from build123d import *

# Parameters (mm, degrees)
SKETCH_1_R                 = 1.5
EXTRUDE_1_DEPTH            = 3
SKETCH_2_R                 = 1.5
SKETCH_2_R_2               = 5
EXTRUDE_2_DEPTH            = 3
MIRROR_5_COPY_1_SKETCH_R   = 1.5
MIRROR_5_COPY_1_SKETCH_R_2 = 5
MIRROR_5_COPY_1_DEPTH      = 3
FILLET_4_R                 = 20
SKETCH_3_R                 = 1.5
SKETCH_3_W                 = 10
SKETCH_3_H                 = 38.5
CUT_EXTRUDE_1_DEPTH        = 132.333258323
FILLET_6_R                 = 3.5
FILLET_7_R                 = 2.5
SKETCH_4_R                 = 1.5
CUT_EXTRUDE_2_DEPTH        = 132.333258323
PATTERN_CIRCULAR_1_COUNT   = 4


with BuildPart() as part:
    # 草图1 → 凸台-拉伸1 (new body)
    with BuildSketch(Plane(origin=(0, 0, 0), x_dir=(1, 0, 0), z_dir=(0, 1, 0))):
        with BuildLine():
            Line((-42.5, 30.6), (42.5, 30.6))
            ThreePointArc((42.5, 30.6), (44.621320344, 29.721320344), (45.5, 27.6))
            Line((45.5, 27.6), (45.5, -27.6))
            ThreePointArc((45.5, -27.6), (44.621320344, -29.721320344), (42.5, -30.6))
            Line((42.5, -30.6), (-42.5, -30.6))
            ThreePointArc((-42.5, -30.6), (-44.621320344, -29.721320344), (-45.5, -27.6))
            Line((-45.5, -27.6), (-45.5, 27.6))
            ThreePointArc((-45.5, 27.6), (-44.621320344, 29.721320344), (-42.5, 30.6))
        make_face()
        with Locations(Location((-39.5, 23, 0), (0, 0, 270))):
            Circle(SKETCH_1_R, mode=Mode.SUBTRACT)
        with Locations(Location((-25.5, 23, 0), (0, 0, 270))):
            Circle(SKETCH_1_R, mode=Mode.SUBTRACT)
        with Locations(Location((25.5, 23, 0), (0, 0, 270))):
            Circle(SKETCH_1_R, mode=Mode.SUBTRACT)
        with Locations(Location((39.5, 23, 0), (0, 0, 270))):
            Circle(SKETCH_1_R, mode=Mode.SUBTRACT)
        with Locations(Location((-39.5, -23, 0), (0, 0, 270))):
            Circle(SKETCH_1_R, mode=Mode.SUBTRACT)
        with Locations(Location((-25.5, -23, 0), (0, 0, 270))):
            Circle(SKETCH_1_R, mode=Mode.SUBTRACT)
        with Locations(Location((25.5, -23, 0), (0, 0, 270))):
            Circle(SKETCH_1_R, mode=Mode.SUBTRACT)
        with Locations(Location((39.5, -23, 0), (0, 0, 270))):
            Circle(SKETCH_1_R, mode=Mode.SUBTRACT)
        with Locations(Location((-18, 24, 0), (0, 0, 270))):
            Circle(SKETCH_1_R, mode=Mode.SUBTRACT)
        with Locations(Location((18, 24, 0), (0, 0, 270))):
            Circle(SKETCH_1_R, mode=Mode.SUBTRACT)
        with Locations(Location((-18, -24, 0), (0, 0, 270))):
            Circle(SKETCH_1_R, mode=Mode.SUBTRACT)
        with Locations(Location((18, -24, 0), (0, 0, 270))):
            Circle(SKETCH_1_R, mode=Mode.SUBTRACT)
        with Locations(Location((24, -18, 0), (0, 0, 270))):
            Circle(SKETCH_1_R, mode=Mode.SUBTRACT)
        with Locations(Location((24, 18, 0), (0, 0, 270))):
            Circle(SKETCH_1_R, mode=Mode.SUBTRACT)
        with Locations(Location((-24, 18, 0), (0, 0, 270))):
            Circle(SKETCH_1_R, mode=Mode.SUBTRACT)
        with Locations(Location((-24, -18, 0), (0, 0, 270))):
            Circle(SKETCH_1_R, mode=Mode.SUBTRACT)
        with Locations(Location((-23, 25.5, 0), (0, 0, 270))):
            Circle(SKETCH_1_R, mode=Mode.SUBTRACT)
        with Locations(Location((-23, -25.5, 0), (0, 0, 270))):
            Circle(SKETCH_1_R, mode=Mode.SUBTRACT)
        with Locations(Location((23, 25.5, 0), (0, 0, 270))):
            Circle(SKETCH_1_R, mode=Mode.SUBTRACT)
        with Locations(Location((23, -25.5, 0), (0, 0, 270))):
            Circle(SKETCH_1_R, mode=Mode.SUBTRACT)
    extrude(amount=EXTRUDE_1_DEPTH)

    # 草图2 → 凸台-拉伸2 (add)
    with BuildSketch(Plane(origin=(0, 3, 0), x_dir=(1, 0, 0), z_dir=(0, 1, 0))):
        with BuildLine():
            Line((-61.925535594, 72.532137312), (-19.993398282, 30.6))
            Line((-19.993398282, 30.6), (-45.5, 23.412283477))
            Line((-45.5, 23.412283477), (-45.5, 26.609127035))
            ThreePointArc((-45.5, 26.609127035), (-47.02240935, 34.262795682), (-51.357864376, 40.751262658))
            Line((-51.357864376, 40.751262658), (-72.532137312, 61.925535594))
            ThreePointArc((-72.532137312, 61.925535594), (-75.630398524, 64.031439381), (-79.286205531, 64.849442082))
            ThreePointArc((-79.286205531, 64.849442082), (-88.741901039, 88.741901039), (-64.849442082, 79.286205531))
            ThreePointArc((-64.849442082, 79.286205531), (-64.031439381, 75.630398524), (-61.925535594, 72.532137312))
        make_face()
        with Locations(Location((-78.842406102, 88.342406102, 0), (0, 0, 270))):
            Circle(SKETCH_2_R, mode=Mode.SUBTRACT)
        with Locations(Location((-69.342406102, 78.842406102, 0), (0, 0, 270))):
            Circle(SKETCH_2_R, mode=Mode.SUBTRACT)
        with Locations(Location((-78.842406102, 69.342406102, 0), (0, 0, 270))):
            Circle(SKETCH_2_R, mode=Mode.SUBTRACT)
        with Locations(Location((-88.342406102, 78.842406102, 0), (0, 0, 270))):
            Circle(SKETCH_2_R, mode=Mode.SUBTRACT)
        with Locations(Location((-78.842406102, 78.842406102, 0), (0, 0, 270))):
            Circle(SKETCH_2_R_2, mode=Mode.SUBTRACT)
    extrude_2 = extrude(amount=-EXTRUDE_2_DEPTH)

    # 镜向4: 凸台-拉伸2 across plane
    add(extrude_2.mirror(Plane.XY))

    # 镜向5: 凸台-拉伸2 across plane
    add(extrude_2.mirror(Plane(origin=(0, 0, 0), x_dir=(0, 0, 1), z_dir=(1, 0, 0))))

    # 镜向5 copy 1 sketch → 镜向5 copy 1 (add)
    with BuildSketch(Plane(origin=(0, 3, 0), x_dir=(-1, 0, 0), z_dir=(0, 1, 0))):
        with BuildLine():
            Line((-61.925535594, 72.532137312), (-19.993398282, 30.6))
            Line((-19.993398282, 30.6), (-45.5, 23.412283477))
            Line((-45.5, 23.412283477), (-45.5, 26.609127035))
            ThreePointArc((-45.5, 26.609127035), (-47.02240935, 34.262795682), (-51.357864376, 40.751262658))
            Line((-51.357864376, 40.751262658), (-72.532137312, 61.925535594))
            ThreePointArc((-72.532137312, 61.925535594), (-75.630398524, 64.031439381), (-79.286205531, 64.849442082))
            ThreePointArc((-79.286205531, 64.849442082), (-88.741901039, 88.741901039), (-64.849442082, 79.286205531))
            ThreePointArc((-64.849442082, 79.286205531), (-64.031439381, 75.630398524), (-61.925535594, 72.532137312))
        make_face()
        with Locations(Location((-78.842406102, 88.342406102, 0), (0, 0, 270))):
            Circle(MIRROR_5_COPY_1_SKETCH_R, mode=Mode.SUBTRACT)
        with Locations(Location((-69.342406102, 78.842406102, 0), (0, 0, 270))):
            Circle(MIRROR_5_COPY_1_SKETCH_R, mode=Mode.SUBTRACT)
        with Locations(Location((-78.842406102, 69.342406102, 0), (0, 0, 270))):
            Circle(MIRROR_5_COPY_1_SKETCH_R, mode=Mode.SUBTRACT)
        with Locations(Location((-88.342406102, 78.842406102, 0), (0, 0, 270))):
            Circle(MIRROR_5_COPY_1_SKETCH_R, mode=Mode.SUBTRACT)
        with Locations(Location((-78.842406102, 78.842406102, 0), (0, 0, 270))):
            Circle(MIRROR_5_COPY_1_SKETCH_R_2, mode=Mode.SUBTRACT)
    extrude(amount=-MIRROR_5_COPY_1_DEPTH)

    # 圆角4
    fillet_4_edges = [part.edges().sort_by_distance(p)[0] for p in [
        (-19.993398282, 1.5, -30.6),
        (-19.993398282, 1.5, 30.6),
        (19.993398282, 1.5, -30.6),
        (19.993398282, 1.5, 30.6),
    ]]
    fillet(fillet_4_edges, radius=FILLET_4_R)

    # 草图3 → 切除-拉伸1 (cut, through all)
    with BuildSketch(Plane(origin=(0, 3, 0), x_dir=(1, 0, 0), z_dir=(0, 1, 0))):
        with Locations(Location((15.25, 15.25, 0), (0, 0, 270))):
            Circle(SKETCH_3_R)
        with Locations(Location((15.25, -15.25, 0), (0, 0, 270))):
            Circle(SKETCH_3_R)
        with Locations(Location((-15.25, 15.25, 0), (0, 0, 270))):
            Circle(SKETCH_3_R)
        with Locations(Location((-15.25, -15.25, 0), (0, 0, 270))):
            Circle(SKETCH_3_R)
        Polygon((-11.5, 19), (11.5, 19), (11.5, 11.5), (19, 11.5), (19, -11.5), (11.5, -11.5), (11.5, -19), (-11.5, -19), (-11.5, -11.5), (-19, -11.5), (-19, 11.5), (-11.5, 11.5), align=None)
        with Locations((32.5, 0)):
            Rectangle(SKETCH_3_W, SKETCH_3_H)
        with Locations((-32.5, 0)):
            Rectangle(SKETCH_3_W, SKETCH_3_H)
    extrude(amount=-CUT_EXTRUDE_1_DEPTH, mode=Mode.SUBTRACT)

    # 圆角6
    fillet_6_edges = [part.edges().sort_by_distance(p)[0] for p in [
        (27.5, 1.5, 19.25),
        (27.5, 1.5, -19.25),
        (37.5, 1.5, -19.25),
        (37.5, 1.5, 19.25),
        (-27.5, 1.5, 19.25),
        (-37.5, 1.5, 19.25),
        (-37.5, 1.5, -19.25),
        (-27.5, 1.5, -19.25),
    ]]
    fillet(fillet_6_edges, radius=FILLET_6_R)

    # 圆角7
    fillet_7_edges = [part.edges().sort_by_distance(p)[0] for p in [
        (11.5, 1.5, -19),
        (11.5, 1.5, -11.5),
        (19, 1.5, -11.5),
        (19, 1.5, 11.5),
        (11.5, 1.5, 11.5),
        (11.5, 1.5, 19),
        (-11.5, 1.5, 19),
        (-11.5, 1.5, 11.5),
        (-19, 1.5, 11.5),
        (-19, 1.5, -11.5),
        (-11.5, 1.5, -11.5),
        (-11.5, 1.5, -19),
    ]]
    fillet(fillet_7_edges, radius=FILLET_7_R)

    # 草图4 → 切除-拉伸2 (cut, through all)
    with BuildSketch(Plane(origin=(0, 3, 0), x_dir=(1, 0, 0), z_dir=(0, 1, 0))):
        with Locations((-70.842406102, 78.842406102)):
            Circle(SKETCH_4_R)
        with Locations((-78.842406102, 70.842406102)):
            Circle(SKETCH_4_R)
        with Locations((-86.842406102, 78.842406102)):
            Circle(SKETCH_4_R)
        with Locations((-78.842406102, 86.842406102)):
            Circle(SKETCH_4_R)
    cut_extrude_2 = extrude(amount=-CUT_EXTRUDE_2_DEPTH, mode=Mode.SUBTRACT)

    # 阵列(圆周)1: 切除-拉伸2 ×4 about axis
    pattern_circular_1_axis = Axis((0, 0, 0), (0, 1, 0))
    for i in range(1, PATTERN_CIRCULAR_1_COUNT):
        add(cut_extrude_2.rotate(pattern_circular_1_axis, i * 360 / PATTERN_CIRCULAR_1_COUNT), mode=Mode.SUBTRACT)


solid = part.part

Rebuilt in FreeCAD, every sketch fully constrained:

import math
import FreeCAD as App
import Part
import Sketcher
Q = App.Units.Quantity


def edges_at(feature, points):
    """Names of the edges that pass closest to the given points."""
    edges = feature.Shape.Edges
    near = lambda p: min(range(len(edges)), key=lambda i: edges[i].distToShape(Part.Vertex(*p))[0])
    return sorted({f"Edge{near(p) + 1}" for p in points})

doc = App.newDocument("Part")
body = doc.addObject("PartDesign::Body", "Body")

sketch1 = body.newObject("Sketcher::SketchObject", "Sketch")
sketch1.AttachmentSupport = (doc.getObject("XZ_Plane"), [""])
sketch1.MapMode = "FlatFace"
sketch1.addGeometry(Part.LineSegment(App.Vector(42.5, -30.6, 0), App.Vector(-42.5, -30.6, 0)), False)
sketch1.addGeometry(Part.ArcOfCircle(Part.Circle(App.Vector(-42.5, -27.6, 0), App.Vector(0, 0, 1), 3), math.radians(180), math.radians(270)), False)
sketch1.addGeometry(Part.LineSegment(App.Vector(-45.5, -27.6, 0), App.Vector(-45.5, 27.6, 0)), False)
sketch1.addGeometry(Part.ArcOfCircle(Part.Circle(App.Vector(-42.5, 27.6, 0), App.Vector(0, 0, 1), 3), math.radians(90), math.radians(180)), False)
sketch1.addGeometry(Part.LineSegment(App.Vector(-42.5, 30.6, 0), App.Vector(42.5, 30.6, 0)), False)
sketch1.addGeometry(Part.ArcOfCircle(Part.Circle(App.Vector(42.5, 27.6, 0), App.Vector(0, 0, 1), 3), math.radians(0), math.radians(90)), False)
sketch1.addGeometry(Part.LineSegment(App.Vector(45.5, 27.6, 0), App.Vector(45.5, -27.6, 0)), False)
sketch1.addGeometry(Part.ArcOfCircle(Part.Circle(App.Vector(42.5, -27.6, 0), App.Vector(0, 0, 1), 3), math.radians(-90), math.radians(0)), False)
sketch1.addGeometry(Part.Circle(App.Vector(39.5, 23, 0), App.Vector(0, 0, 1), 1.5), False)
sketch1.addGeometry(Part.Circle(App.Vector(23, 25.5, 0), App.Vector(0, 0, 1), 1.5), False)
sketch1.addGeometry(Part.Circle(App.Vector(25.5, 23, 0), App.Vector(0, 0, 1), 1.5), False)
sketch1.addGeometry(Part.Circle(App.Vector(24, 18, 0), App.Vector(0, 0, 1), 1.5), False)
sketch1.addGeometry(Part.Circle(App.Vector(18, 24, 0), App.Vector(0, 0, 1), 1.5), False)
sketch1.addGeometry(Part.Circle(App.Vector(-18, 24, 0), App.Vector(0, 0, 1), 1.5), False)
sketch1.addGeometry(Part.Circle(App.Vector(-23, 25.5, 0), App.Vector(0, 0, 1), 1.5), False)
sketch1.addGeometry(Part.Circle(App.Vector(-25.5, 23, 0), App.Vector(0, 0, 1), 1.5), False)
sketch1.addGeometry(Part.Circle(App.Vector(-39.5, 23, 0), App.Vector(0, 0, 1), 1.5), False)
sketch1.addGeometry(Part.Circle(App.Vector(-24, 18, 0), App.Vector(0, 0, 1), 1.5), False)
sketch1.addGeometry(Part.Circle(App.Vector(24, -18, 0), App.Vector(0, 0, 1), 1.5), False)
sketch1.addGeometry(Part.Circle(App.Vector(39.5, -23, 0), App.Vector(0, 0, 1), 1.5), False)
sketch1.addGeometry(Part.Circle(App.Vector(25.5, -23, 0), App.Vector(0, 0, 1), 1.5), False)
sketch1.addGeometry(Part.Circle(App.Vector(23, -25.5, 0), App.Vector(0, 0, 1), 1.5), False)
sketch1.addGeometry(Part.Circle(App.Vector(18, -24, 0), App.Vector(0, 0, 1), 1.5), False)
sketch1.addGeometry(Part.Circle(App.Vector(-18, -24, 0), App.Vector(0, 0, 1), 1.5), False)
sketch1.addGeometry(Part.Circle(App.Vector(-24, -18, 0), App.Vector(0, 0, 1), 1.5), False)
sketch1.addGeometry(Part.Circle(App.Vector(-25.5, -23, 0), App.Vector(0, 0, 1), 1.5), False)
sketch1.addGeometry(Part.Circle(App.Vector(-23, -25.5, 0), App.Vector(0, 0, 1), 1.5), False)
sketch1.addGeometry(Part.Circle(App.Vector(-39.5, -23, 0), App.Vector(0, 0, 1), 1.5), False)
sketch1.addConstraint(Sketcher.Constraint("Tangent", 0, 2, 1, 2))
sketch1.addConstraint(Sketcher.Constraint("Tangent", 1, 1, 2, 1))
sketch1.addConstraint(Sketcher.Constraint("Tangent", 2, 2, 3, 2))
sketch1.addConstraint(Sketcher.Constraint("Tangent", 3, 1, 4, 1))
sketch1.addConstraint(Sketcher.Constraint("Tangent", 4, 2, 5, 2))
sketch1.addConstraint(Sketcher.Constraint("Tangent", 5, 1, 6, 1))
sketch1.addConstraint(Sketcher.Constraint("Tangent", 6, 2, 7, 2))
sketch1.addConstraint(Sketcher.Constraint("Tangent", 7, 1, 0, 1))
sketch1.addConstraint(Sketcher.Constraint("Horizontal", 0))
sketch1.addConstraint(Sketcher.Constraint("Vertical", 2))
sketch1.addConstraint(Sketcher.Constraint("Horizontal", 4))
sketch1.addConstraint(Sketcher.Constraint("Vertical", 6))
sketch1.addConstraint(Sketcher.Constraint("Equal", 1, 3))
sketch1.addConstraint(Sketcher.Constraint("Equal", 3, 5))
sketch1.addConstraint(Sketcher.Constraint("Equal", 5, 7))
sketch1.addConstraint(Sketcher.Constraint("Equal", 8, 9))
sketch1.addConstraint(Sketcher.Constraint("Equal", 9, 10))
sketch1.addConstraint(Sketcher.Constraint("Equal", 10, 11))
sketch1.addConstraint(Sketcher.Constraint("Equal", 11, 12))
sketch1.addConstraint(Sketcher.Constraint("Equal", 12, 13))
sketch1.addConstraint(Sketcher.Constraint("Equal", 13, 14))
sketch1.addConstraint(Sketcher.Constraint("Equal", 14, 15))
sketch1.addConstraint(Sketcher.Constraint("Equal", 15, 16))
sketch1.addConstraint(Sketcher.Constraint("Equal", 16, 17))
sketch1.addConstraint(Sketcher.Constraint("Equal", 17, 18))
sketch1.addConstraint(Sketcher.Constraint("Equal", 18, 19))
sketch1.addConstraint(Sketcher.Constraint("Equal", 19, 20))
sketch1.addConstraint(Sketcher.Constraint("Equal", 20, 21))
sketch1.addConstraint(Sketcher.Constraint("Equal", 21, 22))
sketch1.addConstraint(Sketcher.Constraint("Equal", 22, 23))
sketch1.addConstraint(Sketcher.Constraint("Equal", 23, 24))
sketch1.addConstraint(Sketcher.Constraint("Equal", 24, 25))
sketch1.addConstraint(Sketcher.Constraint("Equal", 25, 26))
sketch1.addConstraint(Sketcher.Constraint("Equal", 26, 27))
sketch1.addConstraint(Sketcher.Constraint("Symmetric", 1, 3, 5, 3, -1, 1))
sketch1.addConstraint(Sketcher.Constraint("Symmetric", 17, 3, 18, 3, -1, 1))
sketch1.addConstraint(Sketcher.Constraint("Symmetric", 16, 3, 19, 3, -1, 1))
sketch1.addConstraint(Sketcher.Constraint("Symmetric", 15, 3, 20, 3, -1, 1))
sketch1.addConstraint(Sketcher.Constraint("Symmetric", 14, 3, 21, 3, -1, 1))
sketch1.addConstraint(Sketcher.Constraint("Symmetric", 13, 3, 22, 3, -1, 1))
sketch1.addConstraint(Sketcher.Constraint("Symmetric", 12, 3, 23, 3, -1, 1))
sketch1.addConstraint(Sketcher.Constraint("Symmetric", 11, 3, 24, 3, -1, 1))
sketch1.addConstraint(Sketcher.Constraint("Symmetric", 10, 3, 25, 3, -1, 1))
sketch1.addConstraint(Sketcher.Constraint("Symmetric", 9, 3, 26, 3, -1, 1))
sketch1.addConstraint(Sketcher.Constraint("Symmetric", 8, 3, 27, 3, -1, 1))
sketch1.addConstraint(Sketcher.Constraint("Symmetric", 12, 3, 13, 3, -2))
sketch1.addConstraint(Sketcher.Constraint("Symmetric", 9, 3, 14, 3, -2))
sketch1.addConstraint(Sketcher.Constraint("Symmetric", 10, 3, 15, 3, -2))
sketch1.addConstraint(Sketcher.Constraint("Symmetric", 8, 3, 16, 3, -2))
sketch1.addConstraint(Sketcher.Constraint("Symmetric", 11, 3, 17, 3, -2))
sketch1.addConstraint(Sketcher.Constraint("Horizontal", 8, 3, 10, 3))
sketch1.addConstraint(Sketcher.Constraint("Diameter", 8, 3.0))
sketch1.addConstraint(Sketcher.Constraint("Radius", 1, 3.0))
sketch1.addConstraint(Sketcher.Constraint("DistanceX", 0, 2, 0, 1, 85.0))
sketch1.addConstraint(Sketcher.Constraint("DistanceY", 2, 1, 2, 2, 55.2))
sketch1.addConstraint(Sketcher.Constraint("DistanceY", -1, 1, 8, 3, 23.0))
sketch1.addConstraint(Sketcher.Constraint("DistanceX", -1, 1, 9, 3, 23.0))
sketch1.addConstraint(Sketcher.Constraint("DistanceX", -1, 1, 11, 3, 24.0))
sketch1.addConstraint(Sketcher.Constraint("DistanceY", -1, 1, 11, 3, 18.0))
sketch1.addConstraint(Sketcher.Constraint("DistanceX", -1, 1, 12, 3, 18.0))
sketch1.addConstraint(Sketcher.Constraint("DistanceY", -1, 1, 12, 3, 24.0))
sketch1.addConstraint(Sketcher.Constraint("DistanceX", 8, 3, 5, 3, 3.0))
sketch1.addConstraint(Sketcher.Constraint("DistanceX", 10, 3, 8, 3, 14.0))
sketch1.addConstraint(Sketcher.Constraint("DistanceY", -1, 1, 9, 3, 25.5))
pad1 = body.newObject("PartDesign::Pad", "Pad")
pad1.Profile = sketch1
pad1.Length = 3
pad1.Reversed = True

sketch2 = body.newObject("Sketcher::SketchObject", "Sketch001")
sketch2.AttachmentSupport = (doc.getObject("XZ_Plane"), [""])
sketch2.MapMode = "FlatFace"
sketch2.AttachmentOffset = App.Placement(App.Vector(0, 0, -3), App.Rotation())
sketch2.addGeometry(Part.LineSegment(App.Vector(-20, -30.6, 0), App.Vector(-61.9, -72.5, 0)), False)
sketch2.addGeometry(Part.ArcOfCircle(Part.Circle(App.Vector(-54.9, -79.6, 0), App.Vector(0, 0, 1), 10), math.radians(135), math.radians(178)), False)
sketch2.addGeometry(Part.ArcOfCircle(Part.Circle(App.Vector(-78.8, -78.8, 0), App.Vector(0, 0, 1), 14), math.radians(92), math.radians(358)), False)
sketch2.addGeometry(Part.ArcOfCircle(Part.Circle(App.Vector(-79.6, -54.9, 0), App.Vector(0, 0, 1), 10), math.radians(-88), math.radians(-45)), False)
sketch2.addGeometry(Part.LineSegment(App.Vector(-72.5, -61.9, 0), App.Vector(-51.4, -40.8, 0)), False)
sketch2.addGeometry(Part.ArcOfCircle(Part.Circle(App.Vector(-65.5, -26.6, 0), App.Vector(0, 0, 1), 20), math.radians(-45), math.radians(0)), False)
sketch2.addGeometry(Part.LineSegment(App.Vector(-45.5, -26.6, 0), App.Vector(-45.5, -23.4, 0)), False)
sketch2.addGeometry(Part.LineSegment(App.Vector(-45.5, -23.4, 0), App.Vector(-20, -30.6, 0)), False)
sketch2.addGeometry(Part.Circle(App.Vector(-78.8, -69.3, 0), App.Vector(0, 0, 1), 1.5), False)
sketch2.addGeometry(Part.Circle(App.Vector(-69.3, -78.8, 0), App.Vector(0, 0, 1), 1.5), False)
sketch2.addGeometry(Part.Circle(App.Vector(-78.8, -78.8, 0), App.Vector(0, 0, 1), 5), False)
sketch2.addGeometry(Part.Circle(App.Vector(-88.3, -78.8, 0), App.Vector(0, 0, 1), 1.5), False)
sketch2.addGeometry(Part.Circle(App.Vector(-78.8, -88.3, 0), App.Vector(0, 0, 1), 1.5), False)
sketch2.addConstraint(Sketcher.Constraint("Tangent", 0, 2, 1, 1))
sketch2.addConstraint(Sketcher.Constraint("Tangent", 1, 2, 2, 2))
sketch2.addConstraint(Sketcher.Constraint("Tangent", 2, 1, 3, 1))
sketch2.addConstraint(Sketcher.Constraint("Tangent", 3, 2, 4, 1))
sketch2.addConstraint(Sketcher.Constraint("Tangent", 4, 2, 5, 1))
sketch2.addConstraint(Sketcher.Constraint("Tangent", 5, 2, 6, 1))
sketch2.addConstraint(Sketcher.Constraint("Coincident", 6, 2, 7, 1))
sketch2.addConstraint(Sketcher.Constraint("Coincident", 7, 2, 0, 1))
sketch2.addConstraint(Sketcher.Constraint("Vertical", 6))
sketch2.addConstraint(Sketcher.Constraint("Coincident", 10, 3, 2, 3))
sketch2.addConstraint(Sketcher.Constraint("Equal", 1, 3))
sketch2.addConstraint(Sketcher.Constraint("Equal", 8, 9))
sketch2.addConstraint(Sketcher.Constraint("Equal", 9, 11))
sketch2.addConstraint(Sketcher.Constraint("Equal", 11, 12))
sketch2.addConstraint(Sketcher.Constraint("Parallel", 0, 4))
sketch2.addConstraint(Sketcher.Constraint("Horizontal", 2, 3, 9, 3))
sketch2.addConstraint(Sketcher.Constraint("Horizontal", 10, 3, 11, 3))
sketch2.addConstraint(Sketcher.Constraint("Vertical", 2, 3, 8, 3))
sketch2.addConstraint(Sketcher.Constraint("Vertical", 10, 3, 12, 3))
sketch2.addConstraint(Sketcher.Constraint("Diameter", 8, 3.0))
sketch2.addConstraint(Sketcher.Constraint("Diameter", 10, 10.0))
sketch2.addConstraint(Sketcher.Constraint("Radius", 1, 10.0))
sketch2.addConstraint(Sketcher.Constraint("Radius", 2, 14.0))
sketch2.addConstraint(Sketcher.Constraint("Radius", 5, 20.0))
sketch2.addConstraint(Sketcher.Constraint("Angle", 0, Q("-135 deg")))
sketch2.addConstraint(Sketcher.Constraint("DistanceX", 11, 3, 9, 3, 19.0))
sketch2.addConstraint(Sketcher.Constraint("DistanceY", 12, 3, 8, 3, 19.0))
sketch2.addConstraint(Sketcher.Constraint("Distance", 7, 26.5))
sketch2.addConstraint(Sketcher.Constraint("DistanceX", 5, 3, -1, 1, 65.5))
sketch2.addConstraint(Sketcher.Constraint("DistanceY", 7, 2, -1, 1, 30.6))
sketch2.addConstraint(Sketcher.Constraint("DistanceY", 2, 3, 8, 3, 9.5))
sketch2.addConstraint(Sketcher.Constraint("DistanceX", 2, 3, 9, 3, 9.5))
sketch2.addConstraint(Sketcher.Constraint("DistanceY", 1, 3, 1, 2, 0.317))
sketch2.addConstraint(Sketcher.Constraint("DistanceX", 3, 3, 2, 1, 0.317))
sketch2.addConstraint(Sketcher.Constraint("DistanceX", 7, 2, -1, 1, 19.993398))
sketch2.addConstraint(Sketcher.Constraint("DistanceY", 3, 3, 5, 3, 28.245341))
pad2 = body.newObject("PartDesign::Pad", "Pad001")
pad2.Profile = sketch2
pad2.Length = 3
doc.recompute()

mirrored = body.newObject("PartDesign::Mirrored", "Mirrored")
mirrored.Originals = [pad2]
mirrored.MirrorPlane = (doc.getObject("XY_Plane"), [""])
body.Tip = mirrored
doc.recompute()

mirrored2 = body.newObject("PartDesign::Mirrored", "Mirrored001")
mirrored2.Originals = [pad2]
mirrored2.MirrorPlane = (doc.getObject("YZ_Plane"), [""])
body.Tip = mirrored2

sketch3 = body.newObject("Sketcher::SketchObject", "Sketch002")
sketch3.AttachmentSupport = (doc.getObject("XZ_Plane"), [""])
sketch3.MapMode = "FlatFace"
sketch3.AttachmentOffset = App.Placement(App.Vector(0, 0, -3), App.Rotation())
sketch3.addGeometry(Part.LineSegment(App.Vector(20, 30.6, 0), App.Vector(61.9, 72.5, 0)), False)
sketch3.addGeometry(Part.ArcOfCircle(Part.Circle(App.Vector(54.9, 79.6, 0), App.Vector(0, 0, 1), 10), math.radians(-45), math.radians(-2)), False)
sketch3.addGeometry(Part.ArcOfCircle(Part.Circle(App.Vector(78.8, 78.8, 0), App.Vector(0, 0, 1), 14), math.radians(-88), math.radians(178)), False)
sketch3.addGeometry(Part.ArcOfCircle(Part.Circle(App.Vector(79.6, 54.9, 0), App.Vector(0, 0, 1), 10), math.radians(92), math.radians(135)), False)
sketch3.addGeometry(Part.LineSegment(App.Vector(72.5, 61.9, 0), App.Vector(51.4, 40.8, 0)), False)
sketch3.addGeometry(Part.ArcOfCircle(Part.Circle(App.Vector(65.5, 26.6, 0), App.Vector(0, 0, 1), 20), math.radians(135), math.radians(180)), False)
sketch3.addGeometry(Part.LineSegment(App.Vector(45.5, 26.6, 0), App.Vector(45.5, 23.4, 0)), False)
sketch3.addGeometry(Part.LineSegment(App.Vector(45.5, 23.4, 0), App.Vector(20, 30.6, 0)), False)
sketch3.addGeometry(Part.Circle(App.Vector(78.8, 69.3, 0), App.Vector(0, 0, 1), 1.5), False)
sketch3.addGeometry(Part.Circle(App.Vector(69.3, 78.8, 0), App.Vector(0, 0, 1), 1.5), False)
sketch3.addGeometry(Part.Circle(App.Vector(78.8, 78.8, 0), App.Vector(0, 0, 1), 5), False)
sketch3.addGeometry(Part.Circle(App.Vector(88.3, 78.8, 0), App.Vector(0, 0, 1), 1.5), False)
sketch3.addGeometry(Part.Circle(App.Vector(78.8, 88.3, 0), App.Vector(0, 0, 1), 1.5), False)
sketch3.addConstraint(Sketcher.Constraint("Tangent", 0, 2, 1, 1))
sketch3.addConstraint(Sketcher.Constraint("Tangent", 1, 2, 2, 2))
sketch3.addConstraint(Sketcher.Constraint("Tangent", 2, 1, 3, 1))
sketch3.addConstraint(Sketcher.Constraint("Tangent", 3, 2, 4, 1))
sketch3.addConstraint(Sketcher.Constraint("Tangent", 4, 2, 5, 1))
sketch3.addConstraint(Sketcher.Constraint("Tangent", 5, 2, 6, 1))
sketch3.addConstraint(Sketcher.Constraint("Coincident", 6, 2, 7, 1))
sketch3.addConstraint(Sketcher.Constraint("Coincident", 7, 2, 0, 1))
sketch3.addConstraint(Sketcher.Constraint("Vertical", 6))
sketch3.addConstraint(Sketcher.Constraint("Coincident", 10, 3, 2, 3))
sketch3.addConstraint(Sketcher.Constraint("Equal", 1, 3))
sketch3.addConstraint(Sketcher.Constraint("Equal", 8, 9))
sketch3.addConstraint(Sketcher.Constraint("Equal", 9, 11))
sketch3.addConstraint(Sketcher.Constraint("Equal", 11, 12))
sketch3.addConstraint(Sketcher.Constraint("Parallel", 0, 4))
sketch3.addConstraint(Sketcher.Constraint("Horizontal", 2, 3, 9, 3))
sketch3.addConstraint(Sketcher.Constraint("Horizontal", 10, 3, 11, 3))
sketch3.addConstraint(Sketcher.Constraint("Vertical", 2, 3, 8, 3))
sketch3.addConstraint(Sketcher.Constraint("Vertical", 10, 3, 12, 3))
sketch3.addConstraint(Sketcher.Constraint("Diameter", 8, 3.0))
sketch3.addConstraint(Sketcher.Constraint("Diameter", 10, 10.0))
sketch3.addConstraint(Sketcher.Constraint("Radius", 1, 10.0))
sketch3.addConstraint(Sketcher.Constraint("Radius", 2, 14.0))
sketch3.addConstraint(Sketcher.Constraint("Radius", 5, 20.0))
sketch3.addConstraint(Sketcher.Constraint("Angle", 0, Q("45 deg")))
sketch3.addConstraint(Sketcher.Constraint("DistanceX", 9, 3, 11, 3, 19.0))
sketch3.addConstraint(Sketcher.Constraint("DistanceY", 8, 3, 12, 3, 19.0))
sketch3.addConstraint(Sketcher.Constraint("Distance", 7, 26.5))
sketch3.addConstraint(Sketcher.Constraint("DistanceX", -1, 1, 5, 3, 65.5))
sketch3.addConstraint(Sketcher.Constraint("DistanceY", -1, 1, 7, 2, 30.6))
sketch3.addConstraint(Sketcher.Constraint("DistanceY", 8, 3, 2, 3, 9.5))
sketch3.addConstraint(Sketcher.Constraint("DistanceX", 9, 3, 2, 3, 9.5))
sketch3.addConstraint(Sketcher.Constraint("DistanceY", 1, 2, 1, 3, 0.317))
sketch3.addConstraint(Sketcher.Constraint("DistanceX", 2, 1, 3, 3, 0.317))
sketch3.addConstraint(Sketcher.Constraint("DistanceX", -1, 1, 7, 2, 19.993398))
sketch3.addConstraint(Sketcher.Constraint("DistanceY", 5, 3, 3, 3, 28.245341))
pad3 = body.newObject("PartDesign::Pad", "Pad002")
pad3.Profile = sketch3
pad3.Length = 3
doc.recompute()

fillet = body.newObject("PartDesign::Fillet", "Fillet")
fillet.Base = (pad3, edges_at(pad3, [
    (-19.993, 1.5, -30.6),
    (-19.993, 1.5, 30.6),
    (19.993, 1.5, -30.6),
    (19.993, 1.5, 30.6),
]))
fillet.Radius = 20

sketch4 = body.newObject("Sketcher::SketchObject", "Sketch003")
sketch4.AttachmentSupport = (doc.getObject("XZ_Plane"), [""])
sketch4.MapMode = "FlatFace"
sketch4.AttachmentOffset = App.Placement(App.Vector(0, 0, -3), App.Rotation())
sketch4.addGeometry(Part.Circle(App.Vector(15.2, -15.2, 0), App.Vector(0, 0, 1), 1.5), False)
sketch4.addGeometry(Part.Circle(App.Vector(15.2, 15.2, 0), App.Vector(0, 0, 1), 1.5), False)
sketch4.addGeometry(Part.Circle(App.Vector(-15.2, -15.2, 0), App.Vector(0, 0, 1), 1.5), False)
sketch4.addGeometry(Part.Circle(App.Vector(-15.2, 15.2, 0), App.Vector(0, 0, 1), 1.5), False)
sketch4.addGeometry(Part.LineSegment(App.Vector(11.5, -19, 0), App.Vector(-11.5, -19, 0)), False)
sketch4.addGeometry(Part.LineSegment(App.Vector(-11.5, -19, 0), App.Vector(-11.5, -11.5, 0)), False)
sketch4.addGeometry(Part.LineSegment(App.Vector(-11.5, -11.5, 0), App.Vector(-19, -11.5, 0)), False)
sketch4.addGeometry(Part.LineSegment(App.Vector(-19, -11.5, 0), App.Vector(-19, 11.5, 0)), False)
sketch4.addGeometry(Part.LineSegment(App.Vector(-19, 11.5, 0), App.Vector(-11.5, 11.5, 0)), False)
sketch4.addGeometry(Part.LineSegment(App.Vector(-11.5, 11.5, 0), App.Vector(-11.5, 19, 0)), False)
sketch4.addGeometry(Part.LineSegment(App.Vector(-11.5, 19, 0), App.Vector(11.5, 19, 0)), False)
sketch4.addGeometry(Part.LineSegment(App.Vector(11.5, 19, 0), App.Vector(11.5, 11.5, 0)), False)
sketch4.addGeometry(Part.LineSegment(App.Vector(11.5, 11.5, 0), App.Vector(19, 11.5, 0)), False)
sketch4.addGeometry(Part.LineSegment(App.Vector(19, 11.5, 0), App.Vector(19, -11.5, 0)), False)
sketch4.addGeometry(Part.LineSegment(App.Vector(19, -11.5, 0), App.Vector(11.5, -11.5, 0)), False)
sketch4.addGeometry(Part.LineSegment(App.Vector(11.5, -11.5, 0), App.Vector(11.5, -19, 0)), False)
sketch4.addGeometry(Part.LineSegment(App.Vector(27.5, -19.2, 0), App.Vector(27.5, 19.2, 0)), False)
sketch4.addGeometry(Part.LineSegment(App.Vector(27.5, 19.2, 0), App.Vector(37.5, 19.2, 0)), False)
sketch4.addGeometry(Part.LineSegment(App.Vector(37.5, 19.2, 0), App.Vector(37.5, -19.2, 0)), False)
sketch4.addGeometry(Part.LineSegment(App.Vector(37.5, -19.2, 0), App.Vector(27.5, -19.2, 0)), False)
sketch4.addGeometry(Part.LineSegment(App.Vector(-37.5, -19.2, 0), App.Vector(-37.5, 19.2, 0)), False)
sketch4.addGeometry(Part.LineSegment(App.Vector(-37.5, 19.2, 0), App.Vector(-27.5, 19.2, 0)), False)
sketch4.addGeometry(Part.LineSegment(App.Vector(-27.5, 19.2, 0), App.Vector(-27.5, -19.2, 0)), False)
sketch4.addGeometry(Part.LineSegment(App.Vector(-27.5, -19.2, 0), App.Vector(-37.5, -19.2, 0)), False)
sketch4.addConstraint(Sketcher.Constraint("Coincident", 4, 2, 5, 1))
sketch4.addConstraint(Sketcher.Constraint("Coincident", 5, 2, 6, 1))
sketch4.addConstraint(Sketcher.Constraint("Coincident", 6, 2, 7, 1))
sketch4.addConstraint(Sketcher.Constraint("Coincident", 7, 2, 8, 1))
sketch4.addConstraint(Sketcher.Constraint("Coincident", 8, 2, 9, 1))
sketch4.addConstraint(Sketcher.Constraint("Coincident", 9, 2, 10, 1))
sketch4.addConstraint(Sketcher.Constraint("Coincident", 10, 2, 11, 1))
sketch4.addConstraint(Sketcher.Constraint("Coincident", 11, 2, 12, 1))
sketch4.addConstraint(Sketcher.Constraint("Coincident", 12, 2, 13, 1))
sketch4.addConstraint(Sketcher.Constraint("Coincident", 13, 2, 14, 1))
sketch4.addConstraint(Sketcher.Constraint("Coincident", 14, 2, 15, 1))
sketch4.addConstraint(Sketcher.Constraint("Coincident", 15, 2, 4, 1))
sketch4.addConstraint(Sketcher.Constraint("Coincident", 16, 2, 17, 1))
sketch4.addConstraint(Sketcher.Constraint("Coincident", 17, 2, 18, 1))
sketch4.addConstraint(Sketcher.Constraint("Coincident", 18, 2, 19, 1))
sketch4.addConstraint(Sketcher.Constraint("Coincident", 19, 2, 16, 1))
sketch4.addConstraint(Sketcher.Constraint("Coincident", 20, 2, 21, 1))
sketch4.addConstraint(Sketcher.Constraint("Coincident", 21, 2, 22, 1))
sketch4.addConstraint(Sketcher.Constraint("Coincident", 22, 2, 23, 1))
sketch4.addConstraint(Sketcher.Constraint("Coincident", 23, 2, 20, 1))
sketch4.addConstraint(Sketcher.Constraint("Horizontal", 4))
sketch4.addConstraint(Sketcher.Constraint("Vertical", 5))
sketch4.addConstraint(Sketcher.Constraint("Horizontal", 6))
sketch4.addConstraint(Sketcher.Constraint("Vertical", 7))
sketch4.addConstraint(Sketcher.Constraint("Horizontal", 8))
sketch4.addConstraint(Sketcher.Constraint("Vertical", 9))
sketch4.addConstraint(Sketcher.Constraint("Horizontal", 10))
sketch4.addConstraint(Sketcher.Constraint("Vertical", 11))
sketch4.addConstraint(Sketcher.Constraint("Horizontal", 12))
sketch4.addConstraint(Sketcher.Constraint("Vertical", 13))
sketch4.addConstraint(Sketcher.Constraint("Horizontal", 14))
sketch4.addConstraint(Sketcher.Constraint("Vertical", 15))
sketch4.addConstraint(Sketcher.Constraint("Vertical", 16))
sketch4.addConstraint(Sketcher.Constraint("Horizontal", 17))
sketch4.addConstraint(Sketcher.Constraint("Vertical", 18))
sketch4.addConstraint(Sketcher.Constraint("Horizontal", 19))
sketch4.addConstraint(Sketcher.Constraint("Vertical", 20))
sketch4.addConstraint(Sketcher.Constraint("Horizontal", 21))
sketch4.addConstraint(Sketcher.Constraint("Vertical", 22))
sketch4.addConstraint(Sketcher.Constraint("Horizontal", 23))
sketch4.addConstraint(Sketcher.Constraint("Equal", 0, 1))
sketch4.addConstraint(Sketcher.Constraint("Equal", 1, 2))
sketch4.addConstraint(Sketcher.Constraint("Equal", 2, 3))
sketch4.addConstraint(Sketcher.Constraint("Symmetric", 1, 3, 2, 3, -1, 1))
sketch4.addConstraint(Sketcher.Constraint("Symmetric", 0, 3, 3, 3, -1, 1))
sketch4.addConstraint(Sketcher.Constraint("Symmetric", 4, 2, 10, 2, -1, 1))
sketch4.addConstraint(Sketcher.Constraint("Symmetric", 6, 2, 12, 2, -1, 1))
sketch4.addConstraint(Sketcher.Constraint("Symmetric", 8, 2, 14, 2, -1, 1))
sketch4.addConstraint(Sketcher.Constraint("Symmetric", 18, 2, 20, 2, -1, 1))
sketch4.addConstraint(Sketcher.Constraint("Symmetric", 16, 2, 22, 2, -1, 1))
sketch4.addConstraint(Sketcher.Constraint("Symmetric", 0, 3, 2, 3, -2))
sketch4.addConstraint(Sketcher.Constraint("Symmetric", 8, 2, 11, 2, -2))
sketch4.addConstraint(Sketcher.Constraint("Horizontal", 17, 2, 20, 2))
sketch4.addConstraint(Sketcher.Constraint("Equal", 14, 5))
sketch4.addConstraint(Sketcher.Constraint("Equal", 10, 7))
sketch4.addConstraint(Sketcher.Constraint("Diameter", 0, 3.0))
sketch4.addConstraint(Sketcher.Constraint("DistanceX", 4, 2, 4, 1, 23.0))
sketch4.addConstraint(Sketcher.Constraint("DistanceX", 17, 1, 17, 2, 10.0))
sketch4.addConstraint(Sketcher.Constraint("DistanceX", 6, 2, 6, 1, 7.5))
sketch4.addConstraint(Sketcher.Constraint("DistanceY", 16, 1, 16, 2, 38.5))
sketch4.addConstraint(Sketcher.Constraint("DistanceY", 1, 3, 16, 2, 4.0))
sketch4.addConstraint(Sketcher.Constraint("DistanceX", 10, 2, 16, 2, 16.0))
sketch4.addConstraint(Sketcher.Constraint("DistanceX", 2, 3, 0, 3, 30.5))
pocket1 = body.newObject("PartDesign::Pocket", "Pocket")
pocket1.Profile = sketch4
pocket1.Type = "ThroughAll"
pocket1.Reversed = True
doc.recompute()

fillet2 = body.newObject("PartDesign::Fillet", "Fillet001")
fillet2.Base = (pocket1, edges_at(pocket1, [
    (27.5, 1.5, 19.25),
    (27.5, 1.5, -19.25),
    (37.5, 1.5, -19.25),
    (37.5, 1.5, 19.25),
    (-27.5, 1.5, 19.25),
    (-37.5, 1.5, 19.25),
    (-37.5, 1.5, -19.25),
    (-27.5, 1.5, -19.25),
]))
fillet2.Radius = 3.5
doc.recompute()

fillet3 = body.newObject("PartDesign::Fillet", "Fillet002")
fillet3.Base = (fillet2, edges_at(fillet2, [
    (11.5, 1.5, -19),
    (11.5, 1.5, -11.5),
    (19, 1.5, -11.5),
    (19, 1.5, 11.5),
    (11.5, 1.5, 11.5),
    (11.5, 1.5, 19),
    (-11.5, 1.5, 19),
    (-11.5, 1.5, 11.5),
    (-19, 1.5, 11.5),
    (-19, 1.5, -11.5),
    (-11.5, 1.5, -11.5),
    (-11.5, 1.5, -19),
]))
fillet3.Radius = 2.5

sketch5 = body.newObject("Sketcher::SketchObject", "Sketch004")
sketch5.AttachmentSupport = (doc.getObject("XZ_Plane"), [""])
sketch5.MapMode = "FlatFace"
sketch5.AttachmentOffset = App.Placement(App.Vector(0, 0, -3), App.Rotation())
sketch5.addGeometry(Part.Circle(App.Vector(-70.8, -78.8, 0), App.Vector(0, 0, 1), 1.5), False)
sketch5.addGeometry(Part.Circle(App.Vector(-78.8, -70.8, 0), App.Vector(0, 0, 1), 1.5), False)
sketch5.addGeometry(Part.Circle(App.Vector(-86.8, -78.8, 0), App.Vector(0, 0, 1), 1.5), False)
sketch5.addGeometry(Part.Circle(App.Vector(-78.8, -86.8, 0), App.Vector(0, 0, 1), 1.5), False)
sketch5.addConstraint(Sketcher.Constraint("Equal", 0, 1))
sketch5.addConstraint(Sketcher.Constraint("Equal", 1, 2))
sketch5.addConstraint(Sketcher.Constraint("Equal", 2, 3))
sketch5.addConstraint(Sketcher.Constraint("Horizontal", 0, 3, 2, 3))
sketch5.addConstraint(Sketcher.Constraint("Vertical", 1, 3, 3, 3))
sketch5.addConstraint(Sketcher.Constraint("Diameter", 0, 3.0))
sketch5.addConstraint(Sketcher.Constraint("DistanceX", 1, 3, 0, 3, 8.0))
sketch5.addConstraint(Sketcher.Constraint("DistanceY", 0, 3, 1, 3, 8.0))
sketch5.addConstraint(Sketcher.Constraint("DistanceX", 2, 3, 1, 3, 8.0))
sketch5.addConstraint(Sketcher.Constraint("DistanceY", 3, 3, 0, 3, 8.0))
sketch5.addConstraint(Sketcher.Constraint("DistanceX", 0, 3, -1, 1, 70.842406))
sketch5.addConstraint(Sketcher.Constraint("DistanceY", 0, 3, -1, 1, 78.842406))
pocket2 = body.newObject("PartDesign::Pocket", "Pocket001")
pocket2.Profile = sketch5
pocket2.Type = "ThroughAll"
pocket2.Reversed = True
doc.recompute()

polarpattern = body.newObject("PartDesign::PolarPattern", "PolarPattern")
polarpattern.Originals = [pocket2]
polarpattern.Axis = (doc.getObject("Y_Axis"), [""])
polarpattern.Angle = 360
polarpattern.Occurrences = 4
body.Tip = polarpattern

doc.recompute()
